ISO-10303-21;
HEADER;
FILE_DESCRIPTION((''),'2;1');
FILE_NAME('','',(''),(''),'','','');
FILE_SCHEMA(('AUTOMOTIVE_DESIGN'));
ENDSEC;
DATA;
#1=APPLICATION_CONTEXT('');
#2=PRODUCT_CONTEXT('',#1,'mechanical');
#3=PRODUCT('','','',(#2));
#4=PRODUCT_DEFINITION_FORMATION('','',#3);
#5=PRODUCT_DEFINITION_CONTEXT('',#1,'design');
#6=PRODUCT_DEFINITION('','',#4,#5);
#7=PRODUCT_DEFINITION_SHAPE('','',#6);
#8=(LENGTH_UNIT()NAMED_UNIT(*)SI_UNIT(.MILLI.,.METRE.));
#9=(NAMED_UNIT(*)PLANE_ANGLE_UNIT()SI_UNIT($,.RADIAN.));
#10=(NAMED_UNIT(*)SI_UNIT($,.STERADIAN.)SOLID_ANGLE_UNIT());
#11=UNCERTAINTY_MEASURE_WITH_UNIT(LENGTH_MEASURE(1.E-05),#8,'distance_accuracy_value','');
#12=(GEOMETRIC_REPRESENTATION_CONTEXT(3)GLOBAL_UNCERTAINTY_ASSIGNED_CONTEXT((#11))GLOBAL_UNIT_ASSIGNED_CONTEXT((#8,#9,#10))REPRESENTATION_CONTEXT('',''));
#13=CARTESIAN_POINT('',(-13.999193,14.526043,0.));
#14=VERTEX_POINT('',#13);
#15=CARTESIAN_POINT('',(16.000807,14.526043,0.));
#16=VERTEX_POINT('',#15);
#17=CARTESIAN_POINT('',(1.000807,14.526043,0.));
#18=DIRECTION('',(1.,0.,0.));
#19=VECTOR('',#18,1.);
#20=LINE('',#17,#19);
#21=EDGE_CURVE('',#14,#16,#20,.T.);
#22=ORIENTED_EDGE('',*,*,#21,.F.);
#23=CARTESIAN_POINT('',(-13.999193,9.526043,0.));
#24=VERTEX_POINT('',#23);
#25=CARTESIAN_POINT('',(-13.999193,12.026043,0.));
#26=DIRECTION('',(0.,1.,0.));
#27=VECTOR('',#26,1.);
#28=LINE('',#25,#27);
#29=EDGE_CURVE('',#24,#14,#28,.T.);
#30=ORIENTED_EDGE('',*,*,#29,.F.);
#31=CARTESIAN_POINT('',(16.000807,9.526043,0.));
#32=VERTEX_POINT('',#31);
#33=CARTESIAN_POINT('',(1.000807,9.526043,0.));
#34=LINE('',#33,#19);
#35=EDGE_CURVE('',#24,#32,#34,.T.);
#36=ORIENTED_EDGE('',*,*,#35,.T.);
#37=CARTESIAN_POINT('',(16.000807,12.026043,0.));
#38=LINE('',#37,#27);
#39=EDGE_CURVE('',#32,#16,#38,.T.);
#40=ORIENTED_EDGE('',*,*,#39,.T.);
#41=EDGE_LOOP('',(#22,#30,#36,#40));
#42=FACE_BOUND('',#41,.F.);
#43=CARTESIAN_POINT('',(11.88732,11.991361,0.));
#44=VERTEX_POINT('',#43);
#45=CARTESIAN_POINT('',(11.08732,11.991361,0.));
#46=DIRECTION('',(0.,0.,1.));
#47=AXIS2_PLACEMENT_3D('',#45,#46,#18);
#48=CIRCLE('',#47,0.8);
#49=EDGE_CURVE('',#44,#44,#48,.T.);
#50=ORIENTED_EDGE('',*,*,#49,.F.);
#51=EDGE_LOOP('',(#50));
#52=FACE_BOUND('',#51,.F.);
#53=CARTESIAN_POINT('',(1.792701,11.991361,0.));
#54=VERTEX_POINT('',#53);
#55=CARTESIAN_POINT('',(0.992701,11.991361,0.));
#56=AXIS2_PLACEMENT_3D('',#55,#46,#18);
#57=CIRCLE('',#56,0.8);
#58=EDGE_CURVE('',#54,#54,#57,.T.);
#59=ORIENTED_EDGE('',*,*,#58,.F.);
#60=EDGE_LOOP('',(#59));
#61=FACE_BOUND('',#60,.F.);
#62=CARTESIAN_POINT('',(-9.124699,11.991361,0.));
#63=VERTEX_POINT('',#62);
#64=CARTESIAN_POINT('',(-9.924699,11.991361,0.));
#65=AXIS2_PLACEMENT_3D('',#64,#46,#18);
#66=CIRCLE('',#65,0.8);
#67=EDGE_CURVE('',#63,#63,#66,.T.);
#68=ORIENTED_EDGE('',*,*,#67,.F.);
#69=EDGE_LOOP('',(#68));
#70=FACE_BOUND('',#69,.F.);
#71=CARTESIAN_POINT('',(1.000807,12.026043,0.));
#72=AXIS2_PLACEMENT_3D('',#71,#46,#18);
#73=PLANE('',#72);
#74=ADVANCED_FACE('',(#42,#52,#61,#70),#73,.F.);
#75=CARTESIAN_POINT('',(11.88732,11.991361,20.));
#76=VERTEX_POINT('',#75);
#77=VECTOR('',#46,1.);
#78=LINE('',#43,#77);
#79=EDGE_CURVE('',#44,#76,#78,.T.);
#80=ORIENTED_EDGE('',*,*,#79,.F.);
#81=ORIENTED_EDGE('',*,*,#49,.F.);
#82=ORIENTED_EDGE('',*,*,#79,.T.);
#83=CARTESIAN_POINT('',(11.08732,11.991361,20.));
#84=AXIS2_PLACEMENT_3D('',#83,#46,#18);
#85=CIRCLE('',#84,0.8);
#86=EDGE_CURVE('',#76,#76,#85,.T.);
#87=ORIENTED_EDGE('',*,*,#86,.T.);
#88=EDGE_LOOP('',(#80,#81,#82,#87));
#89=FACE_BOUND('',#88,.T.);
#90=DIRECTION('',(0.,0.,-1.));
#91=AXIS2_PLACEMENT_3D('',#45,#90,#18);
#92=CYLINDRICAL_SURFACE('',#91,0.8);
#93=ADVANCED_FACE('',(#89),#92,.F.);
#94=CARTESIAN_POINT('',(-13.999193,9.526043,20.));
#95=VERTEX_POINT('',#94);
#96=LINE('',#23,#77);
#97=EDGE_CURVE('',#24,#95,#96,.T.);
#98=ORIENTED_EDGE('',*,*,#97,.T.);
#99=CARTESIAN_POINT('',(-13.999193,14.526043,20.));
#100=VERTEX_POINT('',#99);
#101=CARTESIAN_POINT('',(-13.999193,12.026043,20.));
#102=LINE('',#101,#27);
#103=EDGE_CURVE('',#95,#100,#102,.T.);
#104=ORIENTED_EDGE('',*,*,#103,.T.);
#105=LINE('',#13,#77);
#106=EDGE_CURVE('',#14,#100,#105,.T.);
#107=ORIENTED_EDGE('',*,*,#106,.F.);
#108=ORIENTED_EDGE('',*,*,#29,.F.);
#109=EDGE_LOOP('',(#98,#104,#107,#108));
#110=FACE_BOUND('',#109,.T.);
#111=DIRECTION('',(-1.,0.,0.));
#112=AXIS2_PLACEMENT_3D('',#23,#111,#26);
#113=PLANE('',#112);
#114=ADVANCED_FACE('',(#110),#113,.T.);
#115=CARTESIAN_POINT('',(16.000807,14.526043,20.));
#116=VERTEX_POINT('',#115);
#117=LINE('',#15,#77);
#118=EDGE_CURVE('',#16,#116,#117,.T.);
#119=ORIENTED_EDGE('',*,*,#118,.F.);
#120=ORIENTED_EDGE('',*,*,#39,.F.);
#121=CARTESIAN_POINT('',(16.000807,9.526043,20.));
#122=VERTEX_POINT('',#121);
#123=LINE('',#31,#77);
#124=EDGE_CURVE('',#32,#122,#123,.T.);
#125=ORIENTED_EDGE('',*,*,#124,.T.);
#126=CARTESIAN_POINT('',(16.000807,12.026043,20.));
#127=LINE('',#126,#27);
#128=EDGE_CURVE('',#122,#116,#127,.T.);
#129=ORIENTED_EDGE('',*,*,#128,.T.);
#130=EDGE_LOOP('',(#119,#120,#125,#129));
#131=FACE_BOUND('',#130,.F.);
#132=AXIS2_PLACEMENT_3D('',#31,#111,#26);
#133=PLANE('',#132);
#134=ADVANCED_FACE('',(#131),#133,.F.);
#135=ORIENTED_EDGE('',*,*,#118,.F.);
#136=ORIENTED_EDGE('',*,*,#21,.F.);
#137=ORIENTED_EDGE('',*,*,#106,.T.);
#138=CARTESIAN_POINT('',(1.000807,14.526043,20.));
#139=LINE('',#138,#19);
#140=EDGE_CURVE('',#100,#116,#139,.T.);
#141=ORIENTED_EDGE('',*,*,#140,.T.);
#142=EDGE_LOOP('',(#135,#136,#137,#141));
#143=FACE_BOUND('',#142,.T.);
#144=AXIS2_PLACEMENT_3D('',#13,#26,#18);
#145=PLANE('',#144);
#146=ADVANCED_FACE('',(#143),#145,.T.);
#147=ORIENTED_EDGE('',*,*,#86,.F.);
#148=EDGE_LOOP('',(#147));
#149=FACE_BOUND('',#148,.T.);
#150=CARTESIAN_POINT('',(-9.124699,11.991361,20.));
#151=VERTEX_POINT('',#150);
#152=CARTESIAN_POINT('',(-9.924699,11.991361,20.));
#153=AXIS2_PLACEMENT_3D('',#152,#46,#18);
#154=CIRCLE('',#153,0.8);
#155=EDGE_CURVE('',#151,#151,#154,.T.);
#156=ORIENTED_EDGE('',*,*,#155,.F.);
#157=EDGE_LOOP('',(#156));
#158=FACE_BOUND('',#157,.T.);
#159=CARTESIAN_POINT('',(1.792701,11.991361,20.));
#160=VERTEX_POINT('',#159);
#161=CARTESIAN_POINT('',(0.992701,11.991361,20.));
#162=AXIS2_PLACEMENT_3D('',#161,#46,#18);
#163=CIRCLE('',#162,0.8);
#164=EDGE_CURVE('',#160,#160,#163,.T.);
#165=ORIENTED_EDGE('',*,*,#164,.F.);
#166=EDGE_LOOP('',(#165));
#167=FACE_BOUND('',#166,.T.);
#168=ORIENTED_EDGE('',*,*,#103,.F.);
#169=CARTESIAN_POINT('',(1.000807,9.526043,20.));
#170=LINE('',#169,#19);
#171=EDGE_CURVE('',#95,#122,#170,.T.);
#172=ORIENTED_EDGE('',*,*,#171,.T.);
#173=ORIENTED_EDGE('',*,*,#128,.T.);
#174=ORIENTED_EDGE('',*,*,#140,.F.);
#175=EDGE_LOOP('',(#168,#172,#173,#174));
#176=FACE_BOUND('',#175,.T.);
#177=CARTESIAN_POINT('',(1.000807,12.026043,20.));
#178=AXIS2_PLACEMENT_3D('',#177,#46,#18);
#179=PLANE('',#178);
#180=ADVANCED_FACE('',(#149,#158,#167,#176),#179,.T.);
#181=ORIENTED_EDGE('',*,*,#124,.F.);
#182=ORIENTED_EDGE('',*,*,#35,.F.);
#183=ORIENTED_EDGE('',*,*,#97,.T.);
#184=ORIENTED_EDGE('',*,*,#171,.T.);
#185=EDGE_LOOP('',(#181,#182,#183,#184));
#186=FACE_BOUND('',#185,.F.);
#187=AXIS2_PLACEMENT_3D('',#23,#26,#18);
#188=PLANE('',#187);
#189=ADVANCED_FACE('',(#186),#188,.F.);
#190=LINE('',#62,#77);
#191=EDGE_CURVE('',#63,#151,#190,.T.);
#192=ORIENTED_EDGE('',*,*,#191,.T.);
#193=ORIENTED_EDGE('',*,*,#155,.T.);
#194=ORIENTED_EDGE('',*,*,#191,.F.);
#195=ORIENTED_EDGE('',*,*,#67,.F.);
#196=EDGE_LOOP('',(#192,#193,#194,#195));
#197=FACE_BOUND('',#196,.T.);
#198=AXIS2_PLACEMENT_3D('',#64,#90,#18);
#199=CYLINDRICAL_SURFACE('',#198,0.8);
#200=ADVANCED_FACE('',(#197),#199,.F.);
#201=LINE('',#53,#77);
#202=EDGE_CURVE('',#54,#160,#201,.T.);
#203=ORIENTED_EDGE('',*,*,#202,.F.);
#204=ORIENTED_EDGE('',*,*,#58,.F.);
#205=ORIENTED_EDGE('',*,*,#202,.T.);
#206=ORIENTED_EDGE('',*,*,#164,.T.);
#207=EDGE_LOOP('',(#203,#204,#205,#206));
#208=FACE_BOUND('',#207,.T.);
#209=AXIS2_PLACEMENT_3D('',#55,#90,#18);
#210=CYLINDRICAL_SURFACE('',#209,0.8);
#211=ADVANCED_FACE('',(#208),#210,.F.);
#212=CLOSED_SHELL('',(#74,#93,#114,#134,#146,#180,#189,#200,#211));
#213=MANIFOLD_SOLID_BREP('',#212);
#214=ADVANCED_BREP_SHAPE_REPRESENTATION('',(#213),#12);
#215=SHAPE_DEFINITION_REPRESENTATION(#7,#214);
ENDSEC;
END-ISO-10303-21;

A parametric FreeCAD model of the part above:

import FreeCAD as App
import Part
import Sketcher
from FreeCAD import Vector
Q = App.Units.Quantity


def add_polygon(sketch, points):
    """Adds a closed chain of lines whose ends are joined by coincident constraints."""
    first, n = sketch.GeometryCount, len(points)
    for a, b in zip(points, points[1:] + points[:1]):
        sketch.addGeometry(Part.LineSegment(App.Vector(*a, 0), App.Vector(*b, 0)), False)
    for i in range(n):
        sketch.addConstraint(Sketcher.Constraint("Coincident", first + i, 2, first + (i + 1) % n, 1))

doc = App.newDocument("Part")
body = doc.addObject("PartDesign::Body", "Body")

# Sketch on XY plane
sketch1 = body.newObject("Sketcher::SketchObject", "Sketch")
sketch1.AttachmentSupport = (doc.getObject("XY_Plane"), [""])
sketch1.MapMode = "FlatFace"
add_polygon(sketch1, [(-13.999193, 14.526043), (-13.999193, 9.526043), (16.000807, 9.526043), (16.000807, 14.526043)])  # lines 0-3
sketch1.addGeometry(Part.Circle(Vector(-9.924699, 11.991361, 0), Vector(0, 0, 1), 0.8), False)  # 4
sketch1.addGeometry(Part.Circle(Vector(0.992701, 11.991361, 0), Vector(0, 0, 1), 0.8), False)  # 5
sketch1.addGeometry(Part.Circle(Vector(11.08732, 11.991361, 0), Vector(0, 0, 1), 0.8), False)  # 6
sketch1.addConstraint([
    Sketcher.Constraint("Vertical", 0),
    Sketcher.Constraint("Horizontal", 1),
    Sketcher.Constraint("Vertical", 2),
    Sketcher.Constraint("Horizontal", 3),
    Sketcher.Constraint("Equal", 4, 5),
    Sketcher.Constraint("Equal", 5, 6),
    Sketcher.Constraint("Horizontal", 4, 3, 5, 3),
    Sketcher.Constraint("Horizontal", 5, 3, 6, 3),
    Sketcher.Constraint("Diameter", 4, Q("1.6 mm")),
    Sketcher.Constraint("DistanceX", 1, 1, 1, 2, Q("30 mm")),
    Sketcher.Constraint("DistanceY", 0, 2, 0, 1, Q("5 mm")),
    Sketcher.Constraint("DistanceX", 4, 3, -1, 1, Q("9.924699 mm")),
    Sketcher.Constraint("DistanceX", -1, 1, 5, 3, Q("0.992701 mm")),
    Sketcher.Constraint("DistanceY", -1, 1, 4, 3, Q("11.991361 mm")),
    Sketcher.Constraint("DistanceX", -1, 1, 6, 3, Q("11.08732 mm")),
    Sketcher.Constraint("DistanceX", 0, 2, -1, 1, Q("13.999193 mm")),
    Sketcher.Constraint("DistanceY", -1, 1, 0, 2, Q("9.526043 mm")),
])
pad1 = body.newObject("PartDesign::Pad", "Pad")
pad1.Profile = sketch1
pad1.Length = 20

doc.recompute()
